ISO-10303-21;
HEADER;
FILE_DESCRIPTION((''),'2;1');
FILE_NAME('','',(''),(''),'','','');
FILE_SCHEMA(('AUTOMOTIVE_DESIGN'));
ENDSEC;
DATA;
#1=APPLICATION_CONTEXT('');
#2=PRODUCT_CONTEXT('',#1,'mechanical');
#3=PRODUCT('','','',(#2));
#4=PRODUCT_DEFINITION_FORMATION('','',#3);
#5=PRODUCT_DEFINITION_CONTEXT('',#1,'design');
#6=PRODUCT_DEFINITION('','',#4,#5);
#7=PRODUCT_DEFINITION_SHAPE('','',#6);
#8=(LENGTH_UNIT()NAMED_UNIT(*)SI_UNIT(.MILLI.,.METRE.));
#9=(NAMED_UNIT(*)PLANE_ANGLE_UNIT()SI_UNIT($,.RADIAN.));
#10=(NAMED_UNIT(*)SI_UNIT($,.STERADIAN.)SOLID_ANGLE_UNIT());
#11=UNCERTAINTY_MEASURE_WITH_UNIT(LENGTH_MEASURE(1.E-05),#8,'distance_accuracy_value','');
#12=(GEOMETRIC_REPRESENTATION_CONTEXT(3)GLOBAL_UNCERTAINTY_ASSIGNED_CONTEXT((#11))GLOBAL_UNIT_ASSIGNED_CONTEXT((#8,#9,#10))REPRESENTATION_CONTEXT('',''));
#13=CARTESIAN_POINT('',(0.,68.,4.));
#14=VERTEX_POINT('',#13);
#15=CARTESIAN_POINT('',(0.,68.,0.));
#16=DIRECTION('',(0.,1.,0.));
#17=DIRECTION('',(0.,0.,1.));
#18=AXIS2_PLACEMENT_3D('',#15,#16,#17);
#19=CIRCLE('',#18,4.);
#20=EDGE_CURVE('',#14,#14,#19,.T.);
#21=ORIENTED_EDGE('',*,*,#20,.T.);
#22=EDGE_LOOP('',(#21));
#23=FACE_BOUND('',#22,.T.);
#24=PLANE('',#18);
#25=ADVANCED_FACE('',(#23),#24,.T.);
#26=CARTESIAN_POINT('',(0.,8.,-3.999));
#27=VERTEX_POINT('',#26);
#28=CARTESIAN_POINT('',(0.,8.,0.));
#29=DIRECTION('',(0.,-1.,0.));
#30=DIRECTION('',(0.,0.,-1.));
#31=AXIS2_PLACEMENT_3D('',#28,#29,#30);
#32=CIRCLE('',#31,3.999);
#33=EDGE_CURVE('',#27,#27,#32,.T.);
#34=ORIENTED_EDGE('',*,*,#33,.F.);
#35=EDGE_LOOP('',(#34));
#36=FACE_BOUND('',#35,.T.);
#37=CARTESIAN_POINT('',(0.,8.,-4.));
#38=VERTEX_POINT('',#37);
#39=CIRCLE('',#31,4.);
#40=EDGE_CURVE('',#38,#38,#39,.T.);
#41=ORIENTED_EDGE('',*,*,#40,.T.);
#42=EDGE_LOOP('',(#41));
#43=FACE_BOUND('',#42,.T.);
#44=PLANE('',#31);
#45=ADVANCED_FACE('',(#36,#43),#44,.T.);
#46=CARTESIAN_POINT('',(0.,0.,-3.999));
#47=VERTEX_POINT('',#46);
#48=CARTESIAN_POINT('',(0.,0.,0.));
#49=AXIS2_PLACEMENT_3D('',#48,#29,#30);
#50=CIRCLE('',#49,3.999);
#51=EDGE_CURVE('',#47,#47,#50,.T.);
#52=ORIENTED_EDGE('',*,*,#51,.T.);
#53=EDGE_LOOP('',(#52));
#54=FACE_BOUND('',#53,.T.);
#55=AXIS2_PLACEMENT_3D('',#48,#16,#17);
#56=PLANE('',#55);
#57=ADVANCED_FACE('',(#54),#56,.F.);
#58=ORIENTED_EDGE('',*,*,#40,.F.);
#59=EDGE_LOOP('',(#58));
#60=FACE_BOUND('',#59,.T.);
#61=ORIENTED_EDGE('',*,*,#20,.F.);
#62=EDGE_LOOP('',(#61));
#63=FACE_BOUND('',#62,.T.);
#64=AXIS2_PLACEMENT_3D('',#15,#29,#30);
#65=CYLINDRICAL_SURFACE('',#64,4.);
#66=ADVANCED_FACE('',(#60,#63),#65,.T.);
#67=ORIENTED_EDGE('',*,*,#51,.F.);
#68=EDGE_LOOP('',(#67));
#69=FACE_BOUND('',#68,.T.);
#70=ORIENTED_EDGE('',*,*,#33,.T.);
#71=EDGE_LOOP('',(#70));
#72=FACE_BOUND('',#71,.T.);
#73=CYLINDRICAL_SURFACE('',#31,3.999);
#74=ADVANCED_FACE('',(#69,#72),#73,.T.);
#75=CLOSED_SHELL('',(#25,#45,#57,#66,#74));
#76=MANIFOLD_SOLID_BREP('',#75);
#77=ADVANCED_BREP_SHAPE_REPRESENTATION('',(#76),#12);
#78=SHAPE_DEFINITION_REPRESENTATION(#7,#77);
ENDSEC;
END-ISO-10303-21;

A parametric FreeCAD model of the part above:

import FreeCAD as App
import Part
import Sketcher

V = App.Vector
Q = App.Units.Quantity

doc = App.newDocument("Part")
body = doc.addObject("PartDesign::Body", "Body")

sketch1 = doc.addObject("Sketcher::SketchObject", "Sketch")
body.addObject(sketch1)
sketch1.AttachmentSupport = (doc.XZ_Plane, [""])
sketch1.MapMode = "FlatFace"
sketch1.addGeometry(Part.Circle(V(0, 0, 0), V(0, 0, 1), 4), False)
sketch1.addConstraint([
    Sketcher.Constraint("Coincident", 0, 3, -1, 1),
    Sketcher.Constraint("Diameter", 0, Q("8 mm")),
])
pad1 = doc.addObject("PartDesign::Pad", "Pad")
body.addObject(pad1)
pad1.Profile = sketch1
pad1.Length = 68
pad1.Reversed = True

sketch2 = doc.addObject("Sketcher::SketchObject", "Sketch001")
body.addObject(sketch2)
sketch2.AttachmentSupport = (doc.XZ_Plane, [""])
sketch2.MapMode = "FlatFace"
sketch2.addGeometry([
    Part.Circle(V(0, 0, 0), V(0, 0, 1), 4),
    Part.Circle(V(0, 0, 0), V(0, 0, 1), 4),
], False)
sketch2.addConstraint([
    Sketcher.Constraint("Coincident", 0, 3, -1, 1),
    Sketcher.Constraint("Coincident", 1, 3, -1, 1),
    Sketcher.Constraint("Diameter", 0, Q("8 mm")),
    Sketcher.Constraint("Diameter", 1, Q("7.998 mm")),
])
pocket1 = doc.addObject("PartDesign::Pocket", "Pocket")
body.addObject(pocket1)
pocket1.Profile = sketch2
pocket1.Length = 8

doc.recompute()
